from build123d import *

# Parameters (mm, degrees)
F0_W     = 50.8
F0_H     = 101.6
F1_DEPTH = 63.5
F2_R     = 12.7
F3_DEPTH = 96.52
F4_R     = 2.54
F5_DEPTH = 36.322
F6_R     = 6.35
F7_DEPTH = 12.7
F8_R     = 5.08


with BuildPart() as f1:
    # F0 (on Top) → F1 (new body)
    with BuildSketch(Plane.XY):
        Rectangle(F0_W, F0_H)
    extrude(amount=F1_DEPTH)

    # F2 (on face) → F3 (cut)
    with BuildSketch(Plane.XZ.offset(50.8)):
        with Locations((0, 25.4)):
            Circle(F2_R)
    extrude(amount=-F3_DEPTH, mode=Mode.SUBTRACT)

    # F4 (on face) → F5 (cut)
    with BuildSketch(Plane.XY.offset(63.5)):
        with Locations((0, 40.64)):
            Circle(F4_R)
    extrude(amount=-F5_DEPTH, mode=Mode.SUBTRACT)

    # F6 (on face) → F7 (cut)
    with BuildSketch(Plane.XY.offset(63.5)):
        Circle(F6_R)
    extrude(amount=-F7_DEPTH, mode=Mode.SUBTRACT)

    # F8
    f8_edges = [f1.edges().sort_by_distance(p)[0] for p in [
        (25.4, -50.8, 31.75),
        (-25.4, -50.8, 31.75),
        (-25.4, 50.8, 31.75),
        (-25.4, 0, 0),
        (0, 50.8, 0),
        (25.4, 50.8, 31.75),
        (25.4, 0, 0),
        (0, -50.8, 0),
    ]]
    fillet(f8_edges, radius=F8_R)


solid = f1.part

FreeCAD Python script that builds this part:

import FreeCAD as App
import Part
import Sketcher
Q = App.Units.Quantity


def edges_at(feature, points):
    """Names of the edges that pass closest to the given points."""
    edges = feature.Shape.Edges
    near = lambda p: min(range(len(edges)), key=lambda i: edges[i].distToShape(Part.Vertex(*p))[0])
    return sorted({f"Edge{near(p) + 1}" for p in points})

doc = App.newDocument("Part")
body = doc.addObject("PartDesign::Body", "Body")

# Sketch on XY plane
sketch1 = body.newObject("Sketcher::SketchObject", "Sketch")
sketch1.AttachmentSupport = (doc.getObject("XY_Plane"), [""])
sketch1.MapMode = "FlatFace"
sketch1.addGeometry(Part.LineSegment(App.Vector(-25, 51, 0), App.Vector(-25, -51, 0)), False)
sketch1.addGeometry(Part.LineSegment(App.Vector(-25, -51, 0), App.Vector(25, -51, 0)), False)
sketch1.addGeometry(Part.LineSegment(App.Vector(25, -51, 0), App.Vector(25, 51, 0)), False)
sketch1.addGeometry(Part.LineSegment(App.Vector(25, 51, 0), App.Vector(-25, 51, 0)), False)
sketch1.addConstraint(Sketcher.Constraint("Coincident", 0, 2, 1, 1))
sketch1.addConstraint(Sketcher.Constraint("Coincident", 1, 2, 2, 1))
sketch1.addConstraint(Sketcher.Constraint("Coincident", 2, 2, 3, 1))
sketch1.addConstraint(Sketcher.Constraint("Coincident", 3, 2, 0, 1))
sketch1.addConstraint(Sketcher.Constraint("Vertical", 0))
sketch1.addConstraint(Sketcher.Constraint("Horizontal", 1))
sketch1.addConstraint(Sketcher.Constraint("Vertical", 2))
sketch1.addConstraint(Sketcher.Constraint("Horizontal", 3))
sketch1.addConstraint(Sketcher.Constraint("Symmetric", 0, 2, 2, 2, -1, 1))
sketch1.addConstraint(Sketcher.Constraint("DistanceX", 1, 1, 1, 2, Q("2 in")))
sketch1.addConstraint(Sketcher.Constraint("DistanceY", 0, 2, 0, 1, Q("4 in")))
pad1 = body.newObject("PartDesign::Pad", "Pad")
pad1.Profile = sketch1
pad1.Length = Q("2.5 in")

# Sketch on XZ plane
sketch2 = body.newObject("Sketcher::SketchObject", "Sketch001")
sketch2.AttachmentSupport = (doc.getObject("XZ_Plane"), [""])
sketch2.MapMode = "FlatFace"
sketch2.AttachmentOffset = App.Placement(App.Vector(0, 0, 2 * 25.4), App.Rotation())
sketch2.addGeometry(Part.Circle(App.Vector(0, 25, 0), App.Vector(0, 0, 1), 13), False)
sketch2.addConstraint(Sketcher.Constraint("PointOnObject", 0, 3, -2))
sketch2.addConstraint(Sketcher.Constraint("Diameter", 0, Q("1 in")))
sketch2.addConstraint(Sketcher.Constraint("DistanceY", -1, 1, 0, 3, Q("1 in")))
pocket1 = body.newObject("PartDesign::Pocket", "Pocket")
pocket1.Profile = sketch2
pocket1.Length = Q("3.8 in")

# Sketch on XY plane
sketch3 = body.newObject("Sketcher::SketchObject", "Sketch002")
sketch3.AttachmentSupport = (doc.getObject("XY_Plane"), [""])
sketch3.MapMode = "FlatFace"
sketch3.AttachmentOffset = App.Placement(App.Vector(0, 0, 2.5 * 25.4), App.Rotation())
sketch3.addGeometry(Part.Circle(App.Vector(0, 40.6, 0), App.Vector(0, 0, 1), 2.5), False)
sketch3.addConstraint(Sketcher.Constraint("PointOnObject", 0, 3, -2))
sketch3.addConstraint(Sketcher.Constraint("Diameter", 0, Q("0.2 in")))
sketch3.addConstraint(Sketcher.Constraint("DistanceY", -1, 1, 0, 3, Q("1.6 in")))
pocket2 = body.newObject("PartDesign::Pocket", "Pocket001")
pocket2.Profile = sketch3
pocket2.Length = Q("1.43 in")

# Sketch on XY plane
sketch4 = body.newObject("Sketcher::SketchObject", "Sketch003")
sketch4.AttachmentSupport = (doc.getObject("XY_Plane"), [""])
sketch4.MapMode = "FlatFace"
sketch4.AttachmentOffset = App.Placement(App.Vector(0, 0, 2.5 * 25.4), App.Rotation())
sketch4.addGeometry(Part.Circle(App.Vector(0, 0, 0), App.Vector(0, 0, 1), 6), False)
sketch4.addConstraint(Sketcher.Constraint("Coincident", 0, 3, -1, 1))
sketch4.addConstraint(Sketcher.Constraint("Diameter", 0, Q("0.5 in")))
pocket3 = body.newObject("PartDesign::Pocket", "Pocket002")
pocket3.Profile = sketch4
pocket3.Length = Q("0.5 in")
doc.recompute()

fillet = body.newObject("PartDesign::Fillet", "Fillet")
fillet.Base = (pocket3, edges_at(pocket3, [
    (25.4, -50.8, 31.75),
    (-25.4, -50.8, 31.75),
    (-25.4, 50.8, 31.75),
    (-25.4, 0, 0),
    (0, 50.8, 0),
    (25.4, 50.8, 31.75),
    (25.4, 0, 0),
    (0, -50.8, 0),
]))
fillet.Radius = Q("0.2 in")

doc.recompute()
